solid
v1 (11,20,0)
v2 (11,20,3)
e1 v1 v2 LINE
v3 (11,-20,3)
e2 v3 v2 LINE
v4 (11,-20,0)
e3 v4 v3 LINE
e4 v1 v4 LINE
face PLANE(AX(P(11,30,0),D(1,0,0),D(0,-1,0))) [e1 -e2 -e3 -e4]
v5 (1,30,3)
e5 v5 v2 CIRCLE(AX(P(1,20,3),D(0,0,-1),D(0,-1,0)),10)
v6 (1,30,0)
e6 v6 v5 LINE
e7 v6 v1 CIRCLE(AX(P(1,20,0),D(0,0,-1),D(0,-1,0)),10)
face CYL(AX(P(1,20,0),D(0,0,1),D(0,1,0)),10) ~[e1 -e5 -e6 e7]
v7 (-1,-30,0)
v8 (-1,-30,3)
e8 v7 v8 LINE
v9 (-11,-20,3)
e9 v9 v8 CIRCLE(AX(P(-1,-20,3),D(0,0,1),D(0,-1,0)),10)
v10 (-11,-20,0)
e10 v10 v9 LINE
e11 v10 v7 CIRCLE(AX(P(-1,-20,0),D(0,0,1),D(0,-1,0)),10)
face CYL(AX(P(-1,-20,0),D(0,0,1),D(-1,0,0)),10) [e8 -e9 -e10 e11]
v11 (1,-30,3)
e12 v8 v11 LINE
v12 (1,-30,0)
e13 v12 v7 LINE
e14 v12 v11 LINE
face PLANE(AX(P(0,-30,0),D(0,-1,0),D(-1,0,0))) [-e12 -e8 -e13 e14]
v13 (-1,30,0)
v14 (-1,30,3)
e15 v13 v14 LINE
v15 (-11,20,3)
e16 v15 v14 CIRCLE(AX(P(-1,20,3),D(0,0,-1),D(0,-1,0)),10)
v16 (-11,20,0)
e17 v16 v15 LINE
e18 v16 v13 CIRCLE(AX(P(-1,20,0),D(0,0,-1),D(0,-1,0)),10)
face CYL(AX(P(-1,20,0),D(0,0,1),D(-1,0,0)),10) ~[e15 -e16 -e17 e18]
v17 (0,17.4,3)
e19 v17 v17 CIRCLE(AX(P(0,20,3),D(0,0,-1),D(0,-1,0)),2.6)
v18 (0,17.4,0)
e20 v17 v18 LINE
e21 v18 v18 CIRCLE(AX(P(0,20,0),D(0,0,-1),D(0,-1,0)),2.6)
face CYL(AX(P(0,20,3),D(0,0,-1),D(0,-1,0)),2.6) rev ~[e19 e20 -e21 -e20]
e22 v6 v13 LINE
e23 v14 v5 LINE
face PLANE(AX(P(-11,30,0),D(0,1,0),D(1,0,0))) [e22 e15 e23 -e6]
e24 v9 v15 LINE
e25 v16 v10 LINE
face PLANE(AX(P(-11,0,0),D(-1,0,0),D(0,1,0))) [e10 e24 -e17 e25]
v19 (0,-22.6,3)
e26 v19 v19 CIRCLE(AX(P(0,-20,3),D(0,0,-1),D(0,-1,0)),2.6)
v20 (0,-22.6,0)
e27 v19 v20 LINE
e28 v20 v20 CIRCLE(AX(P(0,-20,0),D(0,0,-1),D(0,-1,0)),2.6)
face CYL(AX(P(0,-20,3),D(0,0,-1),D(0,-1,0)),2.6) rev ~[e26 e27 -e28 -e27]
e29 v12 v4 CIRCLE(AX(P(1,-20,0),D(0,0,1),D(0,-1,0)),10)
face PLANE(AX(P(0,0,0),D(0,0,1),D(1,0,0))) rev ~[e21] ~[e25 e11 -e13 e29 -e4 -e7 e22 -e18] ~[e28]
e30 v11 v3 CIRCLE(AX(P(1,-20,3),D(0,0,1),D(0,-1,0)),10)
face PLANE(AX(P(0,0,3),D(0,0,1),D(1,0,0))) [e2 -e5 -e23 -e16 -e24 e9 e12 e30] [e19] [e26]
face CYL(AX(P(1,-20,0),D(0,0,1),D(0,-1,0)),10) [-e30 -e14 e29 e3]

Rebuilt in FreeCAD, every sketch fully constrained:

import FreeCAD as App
import Part
import Sketcher

V = App.Vector
Q = App.Units.Quantity


def edges_at(feature, points):
    """Names of the edges that pass closest to the given points."""
    edges = feature.Shape.Edges
    near = lambda p: min(range(len(edges)), key=lambda i: edges[i].distToShape(Part.Vertex(*p))[0])
    return sorted({f"Edge{near(p) + 1}" for p in points})

doc = App.newDocument("Part")
params = doc.addObject("Spreadsheet::Sheet", "Params")
for row, (alias, value) in enumerate([
    ("sketch1_width", "22 mm"),
    ("sketch1_height", "60 mm"),
    ("pad1_length", "3 mm"),
    ("sketch2_diameter", "5.2 mm"),
    ("hole_diameter", "5.2 mm"),
    ("fillet_radius", "10 mm"),
], start=1):
    params.set(f"A{row}", alias)
    params.set(f"B{row}", "=" + value)
    params.setAlias(f"B{row}", alias)

body = doc.addObject("PartDesign::Body", "Body")

sketch1 = doc.addObject("Sketcher::SketchObject", "Sketch")
body.addObject(sketch1)
sketch1.AttachmentSupport = (doc.XY_Plane, [""])
sketch1.MapMode = "FlatFace"
sketch1.addGeometry([
    Part.LineSegment(V(-11, 30, 0), V(-11, -30, 0)),
    Part.LineSegment(V(-11, -30, 0), V(11, -30, 0)),
    Part.LineSegment(V(11, -30, 0), V(11, 30, 0)),
    Part.LineSegment(V(11, 30, 0), V(-11, 30, 0)),
], False)
sketch1.addConstraint([
    Sketcher.Constraint("Coincident", 0, 2, 1, 1),
    Sketcher.Constraint("Coincident", 1, 2, 2, 1),
    Sketcher.Constraint("Coincident", 2, 2, 3, 1),
    Sketcher.Constraint("Coincident", 3, 2, 0, 1),
    Sketcher.Constraint("Vertical", 0),
    Sketcher.Constraint("Horizontal", 1),
    Sketcher.Constraint("Vertical", 2),
    Sketcher.Constraint("Horizontal", 3),
    Sketcher.Constraint("Symmetric", 0, 2, 2, 2, -1, 1),
    Sketcher.Constraint("DistanceX", 1, 1, 1, 2, Q("22 mm")),
    Sketcher.Constraint("DistanceY", 0, 2, 0, 1, Q("60 mm")),
])
sketch1.setExpression("Constraints[9]", "Params.sketch1_width")
sketch1.setExpression("Constraints[10]", "Params.sketch1_height")
pad1 = doc.addObject("PartDesign::Pad", "Pad")
body.addObject(pad1)
pad1.Profile = sketch1
pad1.setExpression("Length", "Params.pad1_length")

sketch2 = doc.addObject("Sketcher::SketchObject", "Sketch001")
body.addObject(sketch2)
sketch2.AttachmentSupport = (doc.XY_Plane, [""])
sketch2.MapMode = "FlatFace"
sketch2.AttachmentOffset = App.Placement(V(0, 0, 3), App.Rotation())
sketch2.addGeometry([
    Part.Circle(V(0, 20, 0), V(0, 0, 1), 2.6),
    Part.Circle(V(0, -20, 0), V(0, 0, 1), 2.6),
], False)
sketch2.addConstraint([
    Sketcher.Constraint("Equal", 0, 1),
    Sketcher.Constraint("Symmetric", 0, 3, 1, 3, -1, 1),
    Sketcher.Constraint("PointOnObject", 0, 3, -2),
    Sketcher.Constraint("Diameter", 0, Q("5.2 mm")),
    Sketcher.Constraint("DistanceY", -1, 1, 0, 3, Q("20 mm")),
])
sketch2.setExpression("Constraints[3]", "Params.sketch2_diameter")
doc.recompute()
hole = doc.addObject("PartDesign::Hole", "Hole")
body.addObject(hole)
hole.Profile = sketch2
hole.ThreadType = "None"
hole.setExpression("Diameter", "Params.hole_diameter")
hole.DepthType = "ThroughAll"
doc.recompute()

fillet = doc.addObject("PartDesign::Fillet", "Fillet")
body.addObject(fillet)
fillet.Base = (hole, edges_at(hole, [
    (-11, 30, 1.5),
    (11, 30, 1.5),
    (11, -30, 1.5),
    (-11, -30, 1.5),
]))
fillet.setExpression("Radius", "Params.fillet_radius")

doc.recompute()
